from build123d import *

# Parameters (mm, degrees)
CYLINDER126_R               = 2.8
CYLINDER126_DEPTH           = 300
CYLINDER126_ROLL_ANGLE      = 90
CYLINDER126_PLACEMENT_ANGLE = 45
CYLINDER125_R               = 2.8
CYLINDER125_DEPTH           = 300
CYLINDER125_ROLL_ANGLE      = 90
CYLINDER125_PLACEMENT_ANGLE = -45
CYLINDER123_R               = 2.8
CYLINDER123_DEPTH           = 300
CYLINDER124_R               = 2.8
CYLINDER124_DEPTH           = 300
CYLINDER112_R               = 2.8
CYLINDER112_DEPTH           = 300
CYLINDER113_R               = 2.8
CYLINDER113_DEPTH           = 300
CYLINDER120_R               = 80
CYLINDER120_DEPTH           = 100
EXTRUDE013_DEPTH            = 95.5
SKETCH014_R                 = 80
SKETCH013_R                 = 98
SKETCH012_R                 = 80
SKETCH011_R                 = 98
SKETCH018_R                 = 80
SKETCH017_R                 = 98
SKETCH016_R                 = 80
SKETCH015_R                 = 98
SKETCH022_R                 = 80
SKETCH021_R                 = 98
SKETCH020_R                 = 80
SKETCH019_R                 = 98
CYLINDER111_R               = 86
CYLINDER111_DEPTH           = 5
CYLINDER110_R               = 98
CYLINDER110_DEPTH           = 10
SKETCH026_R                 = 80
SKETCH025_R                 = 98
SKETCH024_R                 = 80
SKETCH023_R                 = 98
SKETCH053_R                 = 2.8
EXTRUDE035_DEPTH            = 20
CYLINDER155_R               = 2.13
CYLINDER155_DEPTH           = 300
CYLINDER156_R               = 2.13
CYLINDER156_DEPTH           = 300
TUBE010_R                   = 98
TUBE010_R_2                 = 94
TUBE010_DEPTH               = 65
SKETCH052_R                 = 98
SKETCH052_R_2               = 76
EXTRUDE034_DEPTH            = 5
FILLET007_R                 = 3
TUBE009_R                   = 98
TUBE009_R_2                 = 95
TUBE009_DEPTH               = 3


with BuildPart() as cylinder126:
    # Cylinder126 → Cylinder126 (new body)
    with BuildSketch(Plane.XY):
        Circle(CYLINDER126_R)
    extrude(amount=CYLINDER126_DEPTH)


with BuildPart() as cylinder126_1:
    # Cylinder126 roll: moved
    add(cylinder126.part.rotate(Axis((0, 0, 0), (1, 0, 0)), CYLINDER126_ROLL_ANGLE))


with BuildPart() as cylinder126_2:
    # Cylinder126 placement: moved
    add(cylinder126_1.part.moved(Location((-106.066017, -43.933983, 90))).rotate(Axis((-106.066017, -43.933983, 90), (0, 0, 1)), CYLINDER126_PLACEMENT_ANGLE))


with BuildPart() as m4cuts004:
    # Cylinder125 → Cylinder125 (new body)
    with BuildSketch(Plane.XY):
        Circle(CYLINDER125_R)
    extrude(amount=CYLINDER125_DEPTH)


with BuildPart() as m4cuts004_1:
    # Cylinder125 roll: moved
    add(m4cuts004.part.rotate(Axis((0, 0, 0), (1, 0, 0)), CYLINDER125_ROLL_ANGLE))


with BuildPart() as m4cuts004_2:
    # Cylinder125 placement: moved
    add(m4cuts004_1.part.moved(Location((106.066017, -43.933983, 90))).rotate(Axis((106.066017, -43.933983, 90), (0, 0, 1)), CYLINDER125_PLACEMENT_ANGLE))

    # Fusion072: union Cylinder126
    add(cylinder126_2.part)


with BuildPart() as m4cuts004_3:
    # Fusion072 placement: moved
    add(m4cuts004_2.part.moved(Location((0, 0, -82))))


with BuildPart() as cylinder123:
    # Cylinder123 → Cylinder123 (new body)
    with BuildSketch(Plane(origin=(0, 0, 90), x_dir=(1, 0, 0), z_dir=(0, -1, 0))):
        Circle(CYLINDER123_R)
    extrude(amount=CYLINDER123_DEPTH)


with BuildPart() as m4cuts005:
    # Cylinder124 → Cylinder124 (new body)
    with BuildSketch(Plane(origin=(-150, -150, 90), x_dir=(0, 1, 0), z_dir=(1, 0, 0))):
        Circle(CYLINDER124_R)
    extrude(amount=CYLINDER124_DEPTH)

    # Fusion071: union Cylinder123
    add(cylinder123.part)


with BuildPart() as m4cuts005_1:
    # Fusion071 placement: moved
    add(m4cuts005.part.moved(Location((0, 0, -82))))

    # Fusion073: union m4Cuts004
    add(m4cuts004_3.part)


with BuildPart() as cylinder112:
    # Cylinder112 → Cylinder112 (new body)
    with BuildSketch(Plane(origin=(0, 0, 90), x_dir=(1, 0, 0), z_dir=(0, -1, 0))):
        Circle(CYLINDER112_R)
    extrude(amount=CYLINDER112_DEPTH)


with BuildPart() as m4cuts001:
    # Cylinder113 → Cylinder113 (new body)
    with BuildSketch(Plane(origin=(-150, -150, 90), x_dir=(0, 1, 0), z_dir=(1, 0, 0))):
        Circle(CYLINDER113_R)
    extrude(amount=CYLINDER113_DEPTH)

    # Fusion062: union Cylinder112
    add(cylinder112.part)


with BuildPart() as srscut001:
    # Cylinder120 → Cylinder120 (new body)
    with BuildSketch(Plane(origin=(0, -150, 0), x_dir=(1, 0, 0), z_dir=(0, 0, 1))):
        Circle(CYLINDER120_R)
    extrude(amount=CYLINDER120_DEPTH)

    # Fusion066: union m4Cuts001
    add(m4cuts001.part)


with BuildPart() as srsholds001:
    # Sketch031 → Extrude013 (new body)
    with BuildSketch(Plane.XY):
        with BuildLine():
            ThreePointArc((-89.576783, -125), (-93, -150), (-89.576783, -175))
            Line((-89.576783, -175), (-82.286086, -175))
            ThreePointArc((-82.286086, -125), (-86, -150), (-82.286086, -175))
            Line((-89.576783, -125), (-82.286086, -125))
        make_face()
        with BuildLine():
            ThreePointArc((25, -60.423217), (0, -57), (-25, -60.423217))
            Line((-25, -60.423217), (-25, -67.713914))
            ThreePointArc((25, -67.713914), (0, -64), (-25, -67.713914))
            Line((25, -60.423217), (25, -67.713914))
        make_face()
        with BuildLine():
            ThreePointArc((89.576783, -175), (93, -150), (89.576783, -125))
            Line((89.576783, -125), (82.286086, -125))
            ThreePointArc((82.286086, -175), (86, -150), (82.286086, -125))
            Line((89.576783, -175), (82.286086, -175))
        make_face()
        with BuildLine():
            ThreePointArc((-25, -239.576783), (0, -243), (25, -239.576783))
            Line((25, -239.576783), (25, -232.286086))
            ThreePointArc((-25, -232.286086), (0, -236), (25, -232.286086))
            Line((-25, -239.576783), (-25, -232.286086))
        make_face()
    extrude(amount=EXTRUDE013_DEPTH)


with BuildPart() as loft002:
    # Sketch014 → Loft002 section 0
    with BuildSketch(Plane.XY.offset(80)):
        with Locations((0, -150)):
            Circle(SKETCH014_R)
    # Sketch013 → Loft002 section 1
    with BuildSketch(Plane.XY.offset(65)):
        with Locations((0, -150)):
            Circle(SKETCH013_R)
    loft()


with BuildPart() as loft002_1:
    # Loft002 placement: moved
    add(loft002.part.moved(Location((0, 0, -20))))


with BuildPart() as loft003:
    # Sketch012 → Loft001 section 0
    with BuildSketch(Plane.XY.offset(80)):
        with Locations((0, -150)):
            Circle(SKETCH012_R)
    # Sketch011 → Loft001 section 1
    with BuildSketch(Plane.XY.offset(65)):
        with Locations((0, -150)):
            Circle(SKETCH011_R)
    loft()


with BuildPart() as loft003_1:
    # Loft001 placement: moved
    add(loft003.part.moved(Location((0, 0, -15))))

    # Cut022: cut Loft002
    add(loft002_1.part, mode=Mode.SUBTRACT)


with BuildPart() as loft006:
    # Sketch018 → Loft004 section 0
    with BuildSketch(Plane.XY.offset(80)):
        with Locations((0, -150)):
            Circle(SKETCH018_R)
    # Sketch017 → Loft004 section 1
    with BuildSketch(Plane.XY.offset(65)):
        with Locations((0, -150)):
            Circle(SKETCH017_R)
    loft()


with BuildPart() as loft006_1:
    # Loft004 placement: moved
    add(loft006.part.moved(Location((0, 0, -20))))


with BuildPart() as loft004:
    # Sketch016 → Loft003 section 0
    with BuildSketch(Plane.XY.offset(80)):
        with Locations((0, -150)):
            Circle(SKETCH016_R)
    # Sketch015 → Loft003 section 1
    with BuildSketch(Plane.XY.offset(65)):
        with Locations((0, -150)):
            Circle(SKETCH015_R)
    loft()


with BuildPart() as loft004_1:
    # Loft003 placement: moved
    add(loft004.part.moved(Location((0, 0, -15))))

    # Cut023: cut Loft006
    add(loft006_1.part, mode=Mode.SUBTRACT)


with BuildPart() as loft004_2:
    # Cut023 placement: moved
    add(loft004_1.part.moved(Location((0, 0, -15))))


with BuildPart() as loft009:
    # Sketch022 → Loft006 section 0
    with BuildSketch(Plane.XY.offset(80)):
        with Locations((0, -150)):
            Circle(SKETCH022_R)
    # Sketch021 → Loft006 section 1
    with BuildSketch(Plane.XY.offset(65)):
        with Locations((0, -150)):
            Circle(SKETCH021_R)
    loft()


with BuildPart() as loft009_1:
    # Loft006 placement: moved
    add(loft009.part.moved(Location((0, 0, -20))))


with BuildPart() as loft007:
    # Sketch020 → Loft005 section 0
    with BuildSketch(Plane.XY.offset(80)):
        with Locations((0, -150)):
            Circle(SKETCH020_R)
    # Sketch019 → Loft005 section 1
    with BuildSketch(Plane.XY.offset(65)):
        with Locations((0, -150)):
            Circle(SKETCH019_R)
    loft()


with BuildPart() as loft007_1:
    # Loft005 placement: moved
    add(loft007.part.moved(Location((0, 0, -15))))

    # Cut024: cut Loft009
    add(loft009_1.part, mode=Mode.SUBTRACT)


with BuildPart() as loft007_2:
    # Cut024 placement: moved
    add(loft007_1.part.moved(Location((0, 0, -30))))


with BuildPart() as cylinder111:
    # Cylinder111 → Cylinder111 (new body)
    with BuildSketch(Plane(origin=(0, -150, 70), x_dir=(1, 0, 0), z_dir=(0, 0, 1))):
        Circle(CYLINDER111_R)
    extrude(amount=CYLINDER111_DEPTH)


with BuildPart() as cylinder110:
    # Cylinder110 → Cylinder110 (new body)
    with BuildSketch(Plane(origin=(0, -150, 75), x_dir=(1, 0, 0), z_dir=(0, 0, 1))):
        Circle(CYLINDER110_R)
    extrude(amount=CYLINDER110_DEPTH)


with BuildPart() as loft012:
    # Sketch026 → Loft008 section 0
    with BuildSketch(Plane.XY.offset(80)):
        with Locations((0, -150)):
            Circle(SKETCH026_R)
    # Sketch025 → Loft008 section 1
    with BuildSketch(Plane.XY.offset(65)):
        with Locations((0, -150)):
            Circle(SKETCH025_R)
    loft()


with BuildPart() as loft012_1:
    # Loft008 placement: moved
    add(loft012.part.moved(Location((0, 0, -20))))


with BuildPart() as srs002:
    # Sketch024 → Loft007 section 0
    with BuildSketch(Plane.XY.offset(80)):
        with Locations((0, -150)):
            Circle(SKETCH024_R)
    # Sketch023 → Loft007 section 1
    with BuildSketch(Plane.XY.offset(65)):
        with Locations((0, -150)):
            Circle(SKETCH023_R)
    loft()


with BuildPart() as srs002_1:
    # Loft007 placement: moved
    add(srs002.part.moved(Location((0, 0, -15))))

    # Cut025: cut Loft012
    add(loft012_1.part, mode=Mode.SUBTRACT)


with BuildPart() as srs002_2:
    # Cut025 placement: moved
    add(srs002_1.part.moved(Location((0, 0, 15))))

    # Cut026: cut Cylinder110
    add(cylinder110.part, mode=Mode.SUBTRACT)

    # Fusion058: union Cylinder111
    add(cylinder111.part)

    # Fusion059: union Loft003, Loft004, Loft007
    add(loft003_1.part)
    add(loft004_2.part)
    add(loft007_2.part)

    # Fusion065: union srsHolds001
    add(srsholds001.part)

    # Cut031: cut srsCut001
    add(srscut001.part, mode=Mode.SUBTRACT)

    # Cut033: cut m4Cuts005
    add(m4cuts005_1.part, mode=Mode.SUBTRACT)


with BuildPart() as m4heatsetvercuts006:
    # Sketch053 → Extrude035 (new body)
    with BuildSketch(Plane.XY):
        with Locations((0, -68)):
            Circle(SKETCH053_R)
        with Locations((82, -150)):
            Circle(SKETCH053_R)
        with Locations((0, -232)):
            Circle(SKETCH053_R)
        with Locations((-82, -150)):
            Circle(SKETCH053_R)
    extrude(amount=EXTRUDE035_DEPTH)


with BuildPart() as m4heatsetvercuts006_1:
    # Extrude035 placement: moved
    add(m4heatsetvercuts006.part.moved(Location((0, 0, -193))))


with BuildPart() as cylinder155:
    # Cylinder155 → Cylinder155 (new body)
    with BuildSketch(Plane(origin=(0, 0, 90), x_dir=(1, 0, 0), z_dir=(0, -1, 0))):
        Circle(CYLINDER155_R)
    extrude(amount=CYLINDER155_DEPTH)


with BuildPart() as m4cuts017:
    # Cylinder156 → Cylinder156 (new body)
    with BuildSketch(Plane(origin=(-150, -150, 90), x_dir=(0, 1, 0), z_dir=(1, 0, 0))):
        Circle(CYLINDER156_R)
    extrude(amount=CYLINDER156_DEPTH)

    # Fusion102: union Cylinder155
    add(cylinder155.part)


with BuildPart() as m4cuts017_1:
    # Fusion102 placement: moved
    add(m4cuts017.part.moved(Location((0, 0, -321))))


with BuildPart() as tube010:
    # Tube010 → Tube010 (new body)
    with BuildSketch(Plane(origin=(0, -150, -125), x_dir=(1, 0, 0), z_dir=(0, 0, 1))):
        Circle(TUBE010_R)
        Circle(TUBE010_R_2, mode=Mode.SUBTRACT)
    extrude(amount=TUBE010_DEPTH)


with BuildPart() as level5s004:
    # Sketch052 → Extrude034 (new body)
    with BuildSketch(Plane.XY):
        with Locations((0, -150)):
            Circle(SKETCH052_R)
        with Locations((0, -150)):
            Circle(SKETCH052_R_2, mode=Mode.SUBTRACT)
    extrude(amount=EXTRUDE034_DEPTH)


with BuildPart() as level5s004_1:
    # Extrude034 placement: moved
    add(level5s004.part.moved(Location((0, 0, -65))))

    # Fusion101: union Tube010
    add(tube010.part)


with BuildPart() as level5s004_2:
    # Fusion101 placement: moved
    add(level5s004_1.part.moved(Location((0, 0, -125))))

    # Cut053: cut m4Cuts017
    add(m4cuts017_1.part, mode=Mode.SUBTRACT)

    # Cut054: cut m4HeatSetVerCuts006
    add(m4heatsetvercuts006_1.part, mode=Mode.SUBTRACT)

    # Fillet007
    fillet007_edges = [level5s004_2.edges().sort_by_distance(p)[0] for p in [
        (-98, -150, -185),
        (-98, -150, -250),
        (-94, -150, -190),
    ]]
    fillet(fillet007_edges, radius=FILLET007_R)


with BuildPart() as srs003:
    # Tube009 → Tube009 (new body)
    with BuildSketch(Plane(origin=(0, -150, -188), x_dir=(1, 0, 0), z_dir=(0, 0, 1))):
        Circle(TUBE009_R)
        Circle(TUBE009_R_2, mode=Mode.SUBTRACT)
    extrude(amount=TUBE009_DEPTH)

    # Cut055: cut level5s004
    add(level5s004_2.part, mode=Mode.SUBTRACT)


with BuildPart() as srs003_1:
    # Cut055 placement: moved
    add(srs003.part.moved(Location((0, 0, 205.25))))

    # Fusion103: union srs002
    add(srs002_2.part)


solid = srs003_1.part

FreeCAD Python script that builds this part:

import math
import FreeCAD as App
import Part
import Sketcher
from FreeCAD import Vector


def edges_at(feature, points):
    """Names of the edges that pass closest to the given points."""
    edges = feature.Shape.Edges
    near = lambda p: min(range(len(edges)), key=lambda i: edges[i].distToShape(Part.Vertex(*p))[0])
    return sorted({f"Edge{near(p) + 1}" for p in points})

doc = App.newDocument("Part")
body = doc.addObject("PartDesign::Body", "Body")

# Sketch on XY plane
sketch1 = body.newObject("Sketcher::SketchObject", "Sketch")
sketch1.AttachmentSupport = (doc.getObject("XY_Plane"), [""])
sketch1.MapMode = "FlatFace"
sketch1.addGeometry(Part.Circle(Vector(0, 0, 0), Vector(0, 0, 1), 2.8), False)
sketch1.addConstraint([
    Sketcher.Constraint("Coincident", 0, 3, -1, 1),
    Sketcher.Constraint("Diameter", 0, 5.6),
])
pad1 = body.newObject("PartDesign::Pad", "Pad")
pad1.Profile = sketch1
pad1.Length = 300
body2 = doc.addObject("PartDesign::Body", "Body001")
doc.recompute()

body.Placement = App.Placement(Vector(0, 0, 0), App.Rotation(Vector(1, 0, 0), 90))
boolean = body2.newObject("PartDesign::Boolean", "Boolean")
boolean.Type = "Fuse"
boolean.addObjects([body])
body3 = doc.addObject("PartDesign::Body", "Body002")
doc.recompute()

body2.Placement = App.Placement(Vector(-106.066017, -43.933983, 90), App.Rotation(Vector(0, 0, 1), 45))
boolean2 = body3.newObject("PartDesign::Boolean", "Boolean001")
boolean2.Type = "Fuse"
boolean2.addObjects([body2])
body4 = doc.addObject("PartDesign::Body", "Body003")

# Sketch on XY plane
sketch2 = body4.newObject("Sketcher::SketchObject", "Sketch001")
sketch2.AttachmentSupport = (doc.getObject("XY_Plane003"), [""])
sketch2.MapMode = "FlatFace"
sketch2.addGeometry(Part.Circle(Vector(0, 0, 0), Vector(0, 0, 1), 2.8), False)
sketch2.addConstraint([
    Sketcher.Constraint("Coincident", 0, 3, -1, 1),
    Sketcher.Constraint("Diameter", 0, 5.6),
])
pad2 = body4.newObject("PartDesign::Pad", "Pad001")
pad2.Profile = sketch2
pad2.Length = 300
body5 = doc.addObject("PartDesign::Body", "Body004")
doc.recompute()

body4.Placement = App.Placement(Vector(0, 0, 0), App.Rotation(Vector(1, 0, 0), 90))
boolean3 = body5.newObject("PartDesign::Boolean", "Boolean002")
boolean3.Type = "Fuse"
boolean3.addObjects([body4])
body6 = doc.addObject("PartDesign::Body", "Body005")
doc.recompute()

body5.Placement = App.Placement(Vector(106.066017, -43.933983, 90), App.Rotation(Vector(0, 0, 1), 315))
boolean4 = body6.newObject("PartDesign::Boolean", "Boolean003")
boolean4.Type = "Fuse"
boolean4.addObjects([body5])
doc.recompute()

boolean5 = body6.newObject("PartDesign::Boolean", "Boolean004")
boolean5.Type = "Fuse"
boolean5.addObjects([body3])
body7 = doc.addObject("PartDesign::Body", "Body006")
doc.recompute()

body6.Placement = App.Placement(Vector(0, 0, -82), App.Rotation(Vector(0, 0, 1), 0))
boolean6 = body7.newObject("PartDesign::Boolean", "Boolean005")
boolean6.Type = "Fuse"
boolean6.addObjects([body6])
body8 = doc.addObject("PartDesign::Body", "Body007")

# Sketch on XZ plane
sketch3 = body8.newObject("Sketcher::SketchObject", "Sketch002")
sketch3.AttachmentSupport = (doc.getObject("XZ_Plane007"), [""])
sketch3.MapMode = "FlatFace"
sketch3.addGeometry(Part.Circle(Vector(0, 90, 0), Vector(0, 0, 1), 2.8), False)
sketch3.addConstraint([
    Sketcher.Constraint("PointOnObject", 0, 3, -2),
    Sketcher.Constraint("Diameter", 0, 5.6),
    Sketcher.Constraint("DistanceY", -1, 1, 0, 3, 90.0),
])
pad3 = body8.newObject("PartDesign::Pad", "Pad002")
pad3.Profile = sketch3
pad3.Length = 300
body9 = doc.addObject("PartDesign::Body", "Body008")

# Sketch on YZ plane
sketch4 = body9.newObject("Sketcher::SketchObject", "Sketch003")
sketch4.AttachmentSupport = (doc.getObject("YZ_Plane008"), [""])
sketch4.MapMode = "FlatFace"
sketch4.AttachmentOffset = App.Placement(Vector(0, 0, -150), App.Rotation())
sketch4.addGeometry(Part.Circle(Vector(-150, 90, 0), Vector(0, 0, 1), 2.8), False)
sketch4.addConstraint([
    Sketcher.Constraint("Diameter", 0, 5.6),
    Sketcher.Constraint("DistanceX", 0, 3, -1, 1, 150.0),
    Sketcher.Constraint("DistanceY", -1, 1, 0, 3, 90.0),
])
pad4 = body9.newObject("PartDesign::Pad", "Pad003")
pad4.Profile = sketch4
pad4.Length = 300
doc.recompute()

boolean7 = body9.newObject("PartDesign::Boolean", "Boolean006")
boolean7.Type = "Fuse"
boolean7.addObjects([body8])
body10 = doc.addObject("PartDesign::Body", "Body009")
doc.recompute()

body9.Placement = App.Placement(Vector(0, 0, -82), App.Rotation(Vector(0, 0, 1), 0))
boolean8 = body10.newObject("PartDesign::Boolean", "Boolean007")
boolean8.Type = "Fuse"
boolean8.addObjects([body9])
doc.recompute()

boolean9 = body10.newObject("PartDesign::Boolean", "Boolean008")
boolean9.Type = "Fuse"
boolean9.addObjects([body7])
body11 = doc.addObject("PartDesign::Body", "Body010")

# Sketch on XZ plane
sketch5 = body11.newObject("Sketcher::SketchObject", "Sketch004")
sketch5.AttachmentSupport = (doc.getObject("XZ_Plane010"), [""])
sketch5.MapMode = "FlatFace"
sketch5.addGeometry(Part.Circle(Vector(0, 90, 0), Vector(0, 0, 1), 2.8), False)
sketch5.addConstraint([
    Sketcher.Constraint("PointOnObject", 0, 3, -2),
    Sketcher.Constraint("Diameter", 0, 5.6),
    Sketcher.Constraint("DistanceY", -1, 1, 0, 3, 90.0),
])
pad5 = body11.newObject("PartDesign::Pad", "Pad004")
pad5.Profile = sketch5
pad5.Length = 300
body12 = doc.addObject("PartDesign::Body", "Body011")

# Sketch on YZ plane
sketch6 = body12.newObject("Sketcher::SketchObject", "Sketch005")
sketch6.AttachmentSupport = (doc.getObject("YZ_Plane011"), [""])
sketch6.MapMode = "FlatFace"
sketch6.AttachmentOffset = App.Placement(Vector(0, 0, -150), App.Rotation())
sketch6.addGeometry(Part.Circle(Vector(-150, 90, 0), Vector(0, 0, 1), 2.8), False)
sketch6.addConstraint([
    Sketcher.Constraint("Diameter", 0, 5.6),
    Sketcher.Constraint("DistanceX", 0, 3, -1, 1, 150.0),
    Sketcher.Constraint("DistanceY", -1, 1, 0, 3, 90.0),
])
pad6 = body12.newObject("PartDesign::Pad", "Pad005")
pad6.Profile = sketch6
pad6.Length = 300
doc.recompute()

boolean10 = body12.newObject("PartDesign::Boolean", "Boolean009")
boolean10.Type = "Fuse"
boolean10.addObjects([body11])
body13 = doc.addObject("PartDesign::Body", "Body012")

# Sketch on XY plane
sketch7 = body13.newObject("Sketcher::SketchObject", "Sketch006")
sketch7.AttachmentSupport = (doc.getObject("XY_Plane012"), [""])
sketch7.MapMode = "FlatFace"
sketch7.addGeometry(Part.Circle(Vector(0, -150, 0), Vector(0, 0, 1), 80), False)
sketch7.addConstraint([
    Sketcher.Constraint("PointOnObject", 0, 3, -2),
    Sketcher.Constraint("Diameter", 0, 160.0),
    Sketcher.Constraint("DistanceY", 0, 3, -1, 1, 150.0),
])
pad7 = body13.newObject("PartDesign::Pad", "Pad006")
pad7.Profile = sketch7
pad7.Length = 100
doc.recompute()

boolean11 = body13.newObject("PartDesign::Boolean", "Boolean010")
boolean11.Type = "Fuse"
boolean11.addObjects([body12])
body14 = doc.addObject("PartDesign::Body", "Body013")
body14.AllowCompound = True

# Sketch on XY plane
sketch8 = body14.newObject("Sketcher::SketchObject", "Sketch007")
sketch8.AttachmentSupport = (doc.getObject("XY_Plane013"), [""])
sketch8.MapMode = "FlatFace"
sketch8.addGeometry([
    Part.ArcOfCircle(Part.Circle(Vector(0.000008, -150, 0), Vector(0, 0, 1), 93.000008), math.radians(164.406106), math.radians(195.593894)),  # 0
    Part.LineSegment(Vector(-89.576783, -175, 0), Vector(-82.286086, -175, 0)),  # 1
    Part.ArcOfCircle(Part.Circle(Vector(-0.000007, -150, 0), Vector(0, 0, 1), 85.999993), math.radians(163.100269), math.radians(196.899731)),  # 2
    Part.LineSegment(Vector(-82.286086, -125, 0), Vector(-89.576783, -125, 0)),  # 3
    Part.ArcOfCircle(Part.Circle(Vector(0, -150.000008, 0), Vector(0, 0, 1), 93.000008), math.radians(74.406106), math.radians(105.593894)),  # 4
    Part.LineSegment(Vector(-25, -60.423217, 0), Vector(-25, -67.713914, 0)),  # 5
    Part.ArcOfCircle(Part.Circle(Vector(0, -149.999993, 0), Vector(0, 0, 1), 85.999993), math.radians(73.100269), math.radians(106.899731)),  # 6
    Part.LineSegment(Vector(25, -67.713914, 0), Vector(25, -60.423217, 0)),  # 7
    Part.ArcOfCircle(Part.Circle(Vector(-0.000008, -150, 0), Vector(0, 0, 1), 93.000008), math.radians(-15.593894), math.radians(15.593894)),  # 8
    Part.LineSegment(Vector(89.576783, -125, 0), Vector(82.286086, -125, 0)),  # 9
    Part.ArcOfCircle(Part.Circle(Vector(0.000007, -150, 0), Vector(0, 0, 1), 85.999993), math.radians(-16.899731), math.radians(16.899731)),  # 10
    Part.LineSegment(Vector(82.286086, -175, 0), Vector(89.576783, -175, 0)),  # 11
    Part.ArcOfCircle(Part.Circle(Vector(0, -149.999992, 0), Vector(0, 0, 1), 93.000008), math.radians(-105.593894), math.radians(-74.406106)),  # 12
    Part.LineSegment(Vector(25, -239.576783, 0), Vector(25, -232.286086, 0)),  # 13
    Part.ArcOfCircle(Part.Circle(Vector(0, -150.000007, 0), Vector(0, 0, 1), 85.999993), math.radians(-106.899731), math.radians(-73.100269)),  # 14
    Part.LineSegment(Vector(-25, -232.286086, 0), Vector(-25, -239.576783, 0)),  # 15
], False)
sketch8.addConstraint([
    Sketcher.Constraint("Coincident", 0, 2, 1, 1),
    Sketcher.Constraint("Coincident", 1, 2, 2, 2),
    Sketcher.Constraint("Coincident", 2, 1, 3, 1),
    Sketcher.Constraint("Coincident", 3, 2, 0, 1),
    Sketcher.Constraint("Coincident", 4, 2, 5, 1),
    Sketcher.Constraint("Coincident", 5, 2, 6, 2),
    Sketcher.Constraint("Coincident", 6, 1, 7, 1),
    Sketcher.Constraint("Coincident", 7, 2, 4, 1),
    Sketcher.Constraint("Coincident", 8, 2, 9, 1),
    Sketcher.Constraint("Coincident", 9, 2, 10, 2),
    Sketcher.Constraint("Coincident", 10, 1, 11, 1),
    Sketcher.Constraint("Coincident", 11, 2, 8, 1),
    Sketcher.Constraint("Coincident", 12, 2, 13, 1),
    Sketcher.Constraint("Coincident", 13, 2, 14, 2),
    Sketcher.Constraint("Coincident", 14, 1, 15, 1),
    Sketcher.Constraint("Coincident", 15, 2, 12, 1),
    Sketcher.Constraint("Horizontal", 1),
    Sketcher.Constraint("Horizontal", 3),
    Sketcher.Constraint("Vertical", 5),
    Sketcher.Constraint("Vertical", 7),
    Sketcher.Constraint("Horizontal", 9),
    Sketcher.Constraint("Horizontal", 11),
    Sketcher.Constraint("Vertical", 13),
    Sketcher.Constraint("Vertical", 15),
    Sketcher.Constraint("Coincident", 6, 3, 2, 3),
    Sketcher.Constraint("Coincident", 8, 3, 2, 3),
    Sketcher.Constraint("Coincident", 10, 3, 0, 3),
    Sketcher.Constraint("Coincident", 12, 3, 6, 3),
    Sketcher.Constraint("Coincident", 14, 3, 2, 3),
    Sketcher.Constraint("PointOnObject", 4, 3, -2),
    Sketcher.Constraint("PointOnObject", 6, 3, -2),
    Sketcher.Constraint("DistanceY", 0, 3, -1, 1, 150.0),
    Sketcher.Constraint("DistanceY", 2, 3, -1, 1, 150.0),
    Sketcher.Constraint("DistanceY", 0, 2, -1, 1, 175.0),
    Sketcher.Constraint("DistanceY", 2, 1, -1, 1, 125.0),
    Sketcher.Constraint("DistanceX", 4, 2, -1, 1, 25.0),
    Sketcher.Constraint("DistanceX", -1, 1, 6, 1, 25.0),
    Sketcher.Constraint("DistanceY", 8, 2, -1, 1, 125.0),
    Sketcher.Constraint("DistanceY", 10, 1, -1, 1, 175.0),
    Sketcher.Constraint("DistanceX", -1, 1, 12, 2, 25.0),
    Sketcher.Constraint("DistanceX", 14, 1, -1, 1, 25.0),
    Sketcher.Constraint("Radius", 0, 93.000008),
    Sketcher.Constraint("Radius", 2, 85.999993),
    Sketcher.Constraint("Radius", 4, 93.000008),
    Sketcher.Constraint("Radius", 6, 85.999993),
    Sketcher.Constraint("Radius", 8, 93.000008),
    Sketcher.Constraint("Radius", 10, 85.999993),
    Sketcher.Constraint("Radius", 12, 93.000008),
    Sketcher.Constraint("Radius", 14, 85.999993),
    Sketcher.Constraint("DistanceX", 1, 1, 1, 2, 7.290697),
    Sketcher.Constraint("DistanceY", 5, 2, 5, 1, 7.290697),
])
pad8 = body14.newObject("PartDesign::Pad", "Pad007")
pad8.Profile = sketch8
pad8.Length = 95.5
body15 = doc.addObject("PartDesign::Body", "Body014")

# Sketch on XY plane
sketch9 = body15.newObject("Sketcher::SketchObject", "Sketch008")
sketch9.AttachmentSupport = (doc.getObject("XY_Plane014"), [""])
sketch9.MapMode = "FlatFace"
sketch9.AttachmentOffset = App.Placement(Vector(0, 0, 80), App.Rotation())
sketch9.addGeometry(Part.Circle(Vector(0, -150, 0), Vector(0, 0, 1), 80), False)
sketch9.addConstraint([
    Sketcher.Constraint("PointOnObject", 0, 3, -2),
    Sketcher.Constraint("Diameter", 0, 160.0),
    Sketcher.Constraint("DistanceY", 0, 3, -1, 1, 150.0),
])

# Sketch on XY plane
sketch10 = body15.newObject("Sketcher::SketchObject", "Sketch009")
sketch10.AttachmentSupport = (doc.getObject("XY_Plane014"), [""])
sketch10.MapMode = "FlatFace"
sketch10.AttachmentOffset = App.Placement(Vector(0, 0, 65), App.Rotation())
sketch10.addGeometry(Part.Circle(Vector(0, -150, 0), Vector(0, 0, 1), 98), False)
sketch10.addConstraint([
    Sketcher.Constraint("PointOnObject", 0, 3, -2),
    Sketcher.Constraint("Diameter", 0, 196.0),
    Sketcher.Constraint("DistanceY", 0, 3, -1, 1, 150.0),
])

additiveloft = body15.newObject("PartDesign::AdditiveLoft", "AdditiveLoft")
additiveloft.Profile = sketch9
additiveloft.Sections = [sketch10]
body16 = doc.addObject("PartDesign::Body", "Body015")
doc.recompute()

body15.Placement = App.Placement(Vector(0, 0, -20), App.Rotation(Vector(0, 0, 1), 0))
boolean12 = body16.newObject("PartDesign::Boolean", "Boolean011")
boolean12.Type = "Fuse"
boolean12.addObjects([body15])
body17 = doc.addObject("PartDesign::Body", "Body016")

# Sketch on XY plane
sketch11 = body17.newObject("Sketcher::SketchObject", "Sketch010")
sketch11.AttachmentSupport = (doc.getObject("XY_Plane016"), [""])
sketch11.MapMode = "FlatFace"
sketch11.AttachmentOffset = App.Placement(Vector(0, 0, 80), App.Rotation())
sketch11.addGeometry(Part.Circle(Vector(0, -150, 0), Vector(0, 0, 1), 80), False)
sketch11.addConstraint([
    Sketcher.Constraint("PointOnObject", 0, 3, -2),
    Sketcher.Constraint("Diameter", 0, 160.0),
    Sketcher.Constraint("DistanceY", 0, 3, -1, 1, 150.0),
])

# Sketch on XY plane
sketch12 = body17.newObject("Sketcher::SketchObject", "Sketch011")
sketch12.AttachmentSupport = (doc.getObject("XY_Plane016"), [""])
sketch12.MapMode = "FlatFace"
sketch12.AttachmentOffset = App.Placement(Vector(0, 0, 65), App.Rotation())
sketch12.addGeometry(Part.Circle(Vector(0, -150, 0), Vector(0, 0, 1), 98), False)
sketch12.addConstraint([
    Sketcher.Constraint("PointOnObject", 0, 3, -2),
    Sketcher.Constraint("Diameter", 0, 196.0),
    Sketcher.Constraint("DistanceY", 0, 3, -1, 1, 150.0),
])

additiveloft2 = body17.newObject("PartDesign::AdditiveLoft", "AdditiveLoft001")
additiveloft2.Profile = sketch11
additiveloft2.Sections = [sketch12]
body18 = doc.addObject("PartDesign::Body", "Body017")
doc.recompute()

body17.Placement = App.Placement(Vector(0, 0, -15), App.Rotation(Vector(0, 0, 1), 0))
boolean13 = body18.newObject("PartDesign::Boolean", "Boolean012")
boolean13.Type = "Fuse"
boolean13.addObjects([body17])
doc.recompute()

boolean14 = body18.newObject("PartDesign::Boolean", "Boolean013")
boolean14.Type = "Cut"
boolean14.addObjects([body16])
body19 = doc.addObject("PartDesign::Body", "Body018")

# Sketch on XY plane
sketch13 = body19.newObject("Sketcher::SketchObject", "Sketch012")
sketch13.AttachmentSupport = (doc.getObject("XY_Plane018"), [""])
sketch13.MapMode = "FlatFace"
sketch13.AttachmentOffset = App.Placement(Vector(0, 0, 80), App.Rotation())
sketch13.addGeometry(Part.Circle(Vector(0, -150, 0), Vector(0, 0, 1), 80), False)
sketch13.addConstraint([
    Sketcher.Constraint("PointOnObject", 0, 3, -2),
    Sketcher.Constraint("Diameter", 0, 160.0),
    Sketcher.Constraint("DistanceY", 0, 3, -1, 1, 150.0),
])

# Sketch on XY plane
sketch14 = body19.newObject("Sketcher::SketchObject", "Sketch013")
sketch14.AttachmentSupport = (doc.getObject("XY_Plane018"), [""])
sketch14.MapMode = "FlatFace"
sketch14.AttachmentOffset = App.Placement(Vector(0, 0, 65), App.Rotation())
sketch14.addGeometry(Part.Circle(Vector(0, -150, 0), Vector(0, 0, 1), 98), False)
sketch14.addConstraint([
    Sketcher.Constraint("PointOnObject", 0, 3, -2),
    Sketcher.Constraint("Diameter", 0, 196.0),
    Sketcher.Constraint("DistanceY", 0, 3, -1, 1, 150.0),
])

additiveloft3 = body19.newObject("PartDesign::AdditiveLoft", "AdditiveLoft002")
additiveloft3.Profile = sketch13
additiveloft3.Sections = [sketch14]
body20 = doc.addObject("PartDesign::Body", "Body019")
doc.recompute()

body19.Placement = App.Placement(Vector(0, 0, -20), App.Rotation(Vector(0, 0, 1), 0))
boolean15 = body20.newObject("PartDesign::Boolean", "Boolean014")
boolean15.Type = "Fuse"
boolean15.addObjects([body19])
body21 = doc.addObject("PartDesign::Body", "Body020")

# Sketch on XY plane
sketch15 = body21.newObject("Sketcher::SketchObject", "Sketch014")
sketch15.AttachmentSupport = (doc.getObject("XY_Plane020"), [""])
sketch15.MapMode = "FlatFace"
sketch15.AttachmentOffset = App.Placement(Vector(0, 0, 80), App.Rotation())
sketch15.addGeometry(Part.Circle(Vector(0, -150, 0), Vector(0, 0, 1), 80), False)
sketch15.addConstraint([
    Sketcher.Constraint("PointOnObject", 0, 3, -2),
    Sketcher.Constraint("Diameter", 0, 160.0),
    Sketcher.Constraint("DistanceY", 0, 3, -1, 1, 150.0),
])

# Sketch on XY plane
sketch16 = body21.newObject("Sketcher::SketchObject", "Sketch015")
sketch16.AttachmentSupport = (doc.getObject("XY_Plane020"), [""])
sketch16.MapMode = "FlatFace"
sketch16.AttachmentOffset = App.Placement(Vector(0, 0, 65), App.Rotation())
sketch16.addGeometry(Part.Circle(Vector(0, -150, 0), Vector(0, 0, 1), 98), False)
sketch16.addConstraint([
    Sketcher.Constraint("PointOnObject", 0, 3, -2),
    Sketcher.Constraint("Diameter", 0, 196.0),
    Sketcher.Constraint("DistanceY", 0, 3, -1, 1, 150.0),
])

additiveloft4 = body21.newObject("PartDesign::AdditiveLoft", "AdditiveLoft003")
additiveloft4.Profile = sketch15
additiveloft4.Sections = [sketch16]
body22 = doc.addObject("PartDesign::Body", "Body021")
doc.recompute()

body21.Placement = App.Placement(Vector(0, 0, -15), App.Rotation(Vector(0, 0, 1), 0))
boolean16 = body22.newObject("PartDesign::Boolean", "Boolean015")
boolean16.Type = "Fuse"
boolean16.addObjects([body21])
doc.recompute()

boolean17 = body22.newObject("PartDesign::Boolean", "Boolean016")
boolean17.Type = "Cut"
boolean17.addObjects([body20])
body23 = doc.addObject("PartDesign::Body", "Body022")
doc.recompute()

body22.Placement = App.Placement(Vector(0, 0, -15), App.Rotation(Vector(0, 0, 1), 0))
boolean18 = body23.newObject("PartDesign::Boolean", "Boolean017")
boolean18.Type = "Fuse"
boolean18.addObjects([body22])
body24 = doc.addObject("PartDesign::Body", "Body023")

# Sketch on XY plane
sketch17 = body24.newObject("Sketcher::SketchObject", "Sketch016")
sketch17.AttachmentSupport = (doc.getObject("XY_Plane023"), [""])
sketch17.MapMode = "FlatFace"
sketch17.AttachmentOffset = App.Placement(Vector(0, 0, 80), App.Rotation())
sketch17.addGeometry(Part.Circle(Vector(0, -150, 0), Vector(0, 0, 1), 80), False)
sketch17.addConstraint([
    Sketcher.Constraint("PointOnObject", 0, 3, -2),
    Sketcher.Constraint("Diameter", 0, 160.0),
    Sketcher.Constraint("DistanceY", 0, 3, -1, 1, 150.0),
])

# Sketch on XY plane
sketch18 = body24.newObject("Sketcher::SketchObject", "Sketch017")
sketch18.AttachmentSupport = (doc.getObject("XY_Plane023"), [""])
sketch18.MapMode = "FlatFace"
sketch18.AttachmentOffset = App.Placement(Vector(0, 0, 65), App.Rotation())
sketch18.addGeometry(Part.Circle(Vector(0, -150, 0), Vector(0, 0, 1), 98), False)
sketch18.addConstraint([
    Sketcher.Constraint("PointOnObject", 0, 3, -2),
    Sketcher.Constraint("Diameter", 0, 196.0),
    Sketcher.Constraint("DistanceY", 0, 3, -1, 1, 150.0),
])

additiveloft5 = body24.newObject("PartDesign::AdditiveLoft", "AdditiveLoft004")
additiveloft5.Profile = sketch17
additiveloft5.Sections = [sketch18]
body25 = doc.addObject("PartDesign::Body", "Body024")
doc.recompute()

body24.Placement = App.Placement(Vector(0, 0, -20), App.Rotation(Vector(0, 0, 1), 0))
boolean19 = body25.newObject("PartDesign::Boolean", "Boolean018")
boolean19.Type = "Fuse"
boolean19.addObjects([body24])
body26 = doc.addObject("PartDesign::Body", "Body025")

# Sketch on XY plane
sketch19 = body26.newObject("Sketcher::SketchObject", "Sketch018")
sketch19.AttachmentSupport = (doc.getObject("XY_Plane025"), [""])
sketch19.MapMode = "FlatFace"
sketch19.AttachmentOffset = App.Placement(Vector(0, 0, 80), App.Rotation())
sketch19.addGeometry(Part.Circle(Vector(0, -150, 0), Vector(0, 0, 1), 80), False)
sketch19.addConstraint([
    Sketcher.Constraint("PointOnObject", 0, 3, -2),
    Sketcher.Constraint("Diameter", 0, 160.0),
    Sketcher.Constraint("DistanceY", 0, 3, -1, 1, 150.0),
])

# Sketch on XY plane
sketch20 = body26.newObject("Sketcher::SketchObject", "Sketch019")
sketch20.AttachmentSupport = (doc.getObject("XY_Plane025"), [""])
sketch20.MapMode = "FlatFace"
sketch20.AttachmentOffset = App.Placement(Vector(0, 0, 65), App.Rotation())
sketch20.addGeometry(Part.Circle(Vector(0, -150, 0), Vector(0, 0, 1), 98), False)
sketch20.addConstraint([
    Sketcher.Constraint("PointOnObject", 0, 3, -2),
    Sketcher.Constraint("Diameter", 0, 196.0),
    Sketcher.Constraint("DistanceY", 0, 3, -1, 1, 150.0),
])

additiveloft6 = body26.newObject("PartDesign::AdditiveLoft", "AdditiveLoft005")
additiveloft6.Profile = sketch19
additiveloft6.Sections = [sketch20]
body27 = doc.addObject("PartDesign::Body", "Body026")
doc.recompute()

body26.Placement = App.Placement(Vector(0, 0, -15), App.Rotation(Vector(0, 0, 1), 0))
boolean20 = body27.newObject("PartDesign::Boolean", "Boolean019")
boolean20.Type = "Fuse"
boolean20.addObjects([body26])
doc.recompute()

boolean21 = body27.newObject("PartDesign::Boolean", "Boolean020")
boolean21.Type = "Cut"
boolean21.addObjects([body25])
body28 = doc.addObject("PartDesign::Body", "Body027")
doc.recompute()

body27.Placement = App.Placement(Vector(0, 0, -30), App.Rotation(Vector(0, 0, 1), 0))
boolean22 = body28.newObject("PartDesign::Boolean", "Boolean021")
boolean22.Type = "Fuse"
boolean22.addObjects([body27])
body29 = doc.addObject("PartDesign::Body", "Body028")

# Sketch on XY plane
sketch21 = body29.newObject("Sketcher::SketchObject", "Sketch020")
sketch21.AttachmentSupport = (doc.getObject("XY_Plane028"), [""])
sketch21.MapMode = "FlatFace"
sketch21.AttachmentOffset = App.Placement(Vector(0, 0, 70), App.Rotation())
sketch21.addGeometry(Part.Circle(Vector(0, -150, 0), Vector(0, 0, 1), 86), False)
sketch21.addConstraint([
    Sketcher.Constraint("PointOnObject", 0, 3, -2),
    Sketcher.Constraint("Diameter", 0, 172.0),
    Sketcher.Constraint("DistanceY", 0, 3, -1, 1, 150.0),
])
pad9 = body29.newObject("PartDesign::Pad", "Pad008")
pad9.Profile = sketch21
pad9.Length = 5
body30 = doc.addObject("PartDesign::Body", "Body029")

# Sketch on XY plane
sketch22 = body30.newObject("Sketcher::SketchObject", "Sketch021")
sketch22.AttachmentSupport = (doc.getObject("XY_Plane029"), [""])
sketch22.MapMode = "FlatFace"
sketch22.AttachmentOffset = App.Placement(Vector(0, 0, 75), App.Rotation())
sketch22.addGeometry(Part.Circle(Vector(0, -150, 0), Vector(0, 0, 1), 98), False)
sketch22.addConstraint([
    Sketcher.Constraint("PointOnObject", 0, 3, -2),
    Sketcher.Constraint("Diameter", 0, 196.0),
    Sketcher.Constraint("DistanceY", 0, 3, -1, 1, 150.0),
])
pad10 = body30.newObject("PartDesign::Pad", "Pad009")
pad10.Profile = sketch22
pad10.Length = 10
body31 = doc.addObject("PartDesign::Body", "Body030")

# Sketch on XY plane
sketch23 = body31.newObject("Sketcher::SketchObject", "Sketch022")
sketch23.AttachmentSupport = (doc.getObject("XY_Plane030"), [""])
sketch23.MapMode = "FlatFace"
sketch23.AttachmentOffset = App.Placement(Vector(0, 0, 80), App.Rotation())
sketch23.addGeometry(Part.Circle(Vector(0, -150, 0), Vector(0, 0, 1), 80), False)
sketch23.addConstraint([
    Sketcher.Constraint("PointOnObject", 0, 3, -2),
    Sketcher.Constraint("Diameter", 0, 160.0),
    Sketcher.Constraint("DistanceY", 0, 3, -1, 1, 150.0),
])

# Sketch on XY plane
sketch24 = body31.newObject("Sketcher::SketchObject", "Sketch023")
sketch24.AttachmentSupport = (doc.getObject("XY_Plane030"), [""])
sketch24.MapMode = "FlatFace"
sketch24.AttachmentOffset = App.Placement(Vector(0, 0, 65), App.Rotation())
sketch24.addGeometry(Part.Circle(Vector(0, -150, 0), Vector(0, 0, 1), 98), False)
sketch24.addConstraint([
    Sketcher.Constraint("PointOnObject", 0, 3, -2),
    Sketcher.Constraint("Diameter", 0, 196.0),
    Sketcher.Constraint("DistanceY", 0, 3, -1, 1, 150.0),
])

additiveloft7 = body31.newObject("PartDesign::AdditiveLoft", "AdditiveLoft006")
additiveloft7.Profile = sketch23
additiveloft7.Sections = [sketch24]
body32 = doc.addObject("PartDesign::Body", "Body031")
doc.recompute()

body31.Placement = App.Placement(Vector(0, 0, -20), App.Rotation(Vector(0, 0, 1), 0))
boolean23 = body32.newObject("PartDesign::Boolean", "Boolean022")
boolean23.Type = "Fuse"
boolean23.addObjects([body31])
body33 = doc.addObject("PartDesign::Body", "Body032")

# Sketch on XY plane
sketch25 = body33.newObject("Sketcher::SketchObject", "Sketch024")
sketch25.AttachmentSupport = (doc.getObject("XY_Plane032"), [""])
sketch25.MapMode = "FlatFace"
sketch25.AttachmentOffset = App.Placement(Vector(0, 0, 80), App.Rotation())
sketch25.addGeometry(Part.Circle(Vector(0, -150, 0), Vector(0, 0, 1), 80), False)
sketch25.addConstraint([
    Sketcher.Constraint("PointOnObject", 0, 3, -2),
    Sketcher.Constraint("Diameter", 0, 160.0),
    Sketcher.Constraint("DistanceY", 0, 3, -1, 1, 150.0),
])

# Sketch on XY plane
sketch26 = body33.newObject("Sketcher::SketchObject", "Sketch025")
sketch26.AttachmentSupport = (doc.getObject("XY_Plane032"), [""])
sketch26.MapMode = "FlatFace"
sketch26.AttachmentOffset = App.Placement(Vector(0, 0, 65), App.Rotation())
sketch26.addGeometry(Part.Circle(Vector(0, -150, 0), Vector(0, 0, 1), 98), False)
sketch26.addConstraint([
    Sketcher.Constraint("PointOnObject", 0, 3, -2),
    Sketcher.Constraint("Diameter", 0, 196.0),
    Sketcher.Constraint("DistanceY", 0, 3, -1, 1, 150.0),
])

additiveloft8 = body33.newObject("PartDesign::AdditiveLoft", "AdditiveLoft007")
additiveloft8.Profile = sketch25
additiveloft8.Sections = [sketch26]
body34 = doc.addObject("PartDesign::Body", "Body033")
doc.recompute()

body33.Placement = App.Placement(Vector(0, 0, -15), App.Rotation(Vector(0, 0, 1), 0))
boolean24 = body34.newObject("PartDesign::Boolean", "Boolean023")
boolean24.Type = "Fuse"
boolean24.addObjects([body33])
doc.recompute()

boolean25 = body34.newObject("PartDesign::Boolean", "Boolean024")
boolean25.Type = "Cut"
boolean25.addObjects([body32])
body35 = doc.addObject("PartDesign::Body", "Body034")
body35.AllowCompound = True
doc.recompute()

body34.Placement = App.Placement(Vector(0, 0, 15), App.Rotation(Vector(0, 0, 1), 0))
boolean26 = body35.newObject("PartDesign::Boolean", "Boolean025")
boolean26.Type = "Fuse"
boolean26.addObjects([body34])
doc.recompute()

boolean27 = body35.newObject("PartDesign::Boolean", "Boolean026")
boolean27.Type = "Cut"
boolean27.addObjects([body30])
doc.recompute()

boolean28 = body35.newObject("PartDesign::Boolean", "Boolean027")
boolean28.Type = "Fuse"
boolean28.addObjects([body29])
doc.recompute()

boolean29 = body35.newObject("PartDesign::Boolean", "Boolean028")
boolean29.Type = "Fuse"
boolean29.addObjects([body18])
doc.recompute()

boolean30 = body35.newObject("PartDesign::Boolean", "Boolean029")
boolean30.Type = "Fuse"
boolean30.addObjects([body23])
doc.recompute()

boolean31 = body35.newObject("PartDesign::Boolean", "Boolean030")
boolean31.Type = "Fuse"
boolean31.addObjects([body28])
doc.recompute()

boolean32 = body35.newObject("PartDesign::Boolean", "Boolean031")
boolean32.Type = "Fuse"
boolean32.addObjects([body14])
doc.recompute()

boolean33 = body35.newObject("PartDesign::Boolean", "Boolean032")
boolean33.Type = "Cut"
boolean33.addObjects([body13])
doc.recompute()

boolean34 = body35.newObject("PartDesign::Boolean", "Boolean033")
boolean34.Type = "Cut"
boolean34.addObjects([body10])
body36 = doc.addObject("PartDesign::Body", "Body035")
body36.AllowCompound = True

# Sketch on XY plane
sketch27 = body36.newObject("Sketcher::SketchObject", "Sketch026")
sketch27.AttachmentSupport = (doc.getObject("XY_Plane035"), [""])
sketch27.MapMode = "FlatFace"
sketch27.addGeometry([
    Part.Circle(Vector(0, -68, 0), Vector(0, 0, 1), 2.8),
    Part.Circle(Vector(82, -150, 0), Vector(0, 0, 1), 2.8),
    Part.Circle(Vector(0, -232, 0), Vector(0, 0, 1), 2.8),
    Part.Circle(Vector(-82, -150, 0), Vector(0, 0, 1), 2.8),
], False)
sketch27.addConstraint([
    Sketcher.Constraint("Equal", 0, 1),
    Sketcher.Constraint("Equal", 1, 2),
    Sketcher.Constraint("Equal", 2, 3),
    Sketcher.Constraint("Symmetric", 1, 3, 3, 3, -2),
    Sketcher.Constraint("PointOnObject", 0, 3, -2),
    Sketcher.Constraint("PointOnObject", 2, 3, -2),
    Sketcher.Constraint("Diameter", 0, 5.6),
    Sketcher.Constraint("DistanceY", 0, 3, -1, 1, 68.0),
    Sketcher.Constraint("DistanceX", -1, 1, 1, 3, 82.0),
    Sketcher.Constraint("DistanceY", 1, 3, -1, 1, 150.0),
    Sketcher.Constraint("DistanceY", 2, 3, -1, 1, 232.0),
])
pad11 = body36.newObject("PartDesign::Pad", "Pad010")
pad11.Profile = sketch27
pad11.Length = 20
body37 = doc.addObject("PartDesign::Body", "Body036")
body37.AllowCompound = True
doc.recompute()

body36.Placement = App.Placement(Vector(0, 0, -193), App.Rotation(Vector(0, 0, 1), 0))
boolean35 = body37.newObject("PartDesign::Boolean", "Boolean034")
boolean35.Type = "Fuse"
boolean35.addObjects([body36])
body38 = doc.addObject("PartDesign::Body", "Body037")

# Sketch on XZ plane
sketch28 = body38.newObject("Sketcher::SketchObject", "Sketch027")
sketch28.AttachmentSupport = (doc.getObject("XZ_Plane037"), [""])
sketch28.MapMode = "FlatFace"
sketch28.addGeometry(Part.Circle(Vector(0, 90, 0), Vector(0, 0, 1), 2.1), False)
sketch28.addConstraint([
    Sketcher.Constraint("PointOnObject", 0, 3, -2),
    Sketcher.Constraint("Diameter", 0, 4.26),
    Sketcher.Constraint("DistanceY", -1, 1, 0, 3, 90.0),
])
pad12 = body38.newObject("PartDesign::Pad", "Pad011")
pad12.Profile = sketch28
pad12.Length = 300
body39 = doc.addObject("PartDesign::Body", "Body038")

# Sketch on YZ plane
sketch29 = body39.newObject("Sketcher::SketchObject", "Sketch028")
sketch29.AttachmentSupport = (doc.getObject("YZ_Plane038"), [""])
sketch29.MapMode = "FlatFace"
sketch29.AttachmentOffset = App.Placement(Vector(0, 0, -150), App.Rotation())
sketch29.addGeometry(Part.Circle(Vector(-150, 90, 0), Vector(0, 0, 1), 2.1), False)
sketch29.addConstraint([
    Sketcher.Constraint("Diameter", 0, 4.26),
    Sketcher.Constraint("DistanceX", 0, 3, -1, 1, 150.0),
    Sketcher.Constraint("DistanceY", -1, 1, 0, 3, 90.0),
])
pad13 = body39.newObject("PartDesign::Pad", "Pad012")
pad13.Profile = sketch29
pad13.Length = 300
doc.recompute()

boolean36 = body39.newObject("PartDesign::Boolean", "Boolean035")
boolean36.Type = "Fuse"
boolean36.addObjects([body38])
body40 = doc.addObject("PartDesign::Body", "Body039")
doc.recompute()

body39.Placement = App.Placement(Vector(0, 0, -321), App.Rotation(Vector(0, 0, 1), 0))
boolean37 = body40.newObject("PartDesign::Boolean", "Boolean036")
boolean37.Type = "Fuse"
boolean37.addObjects([body39])
body41 = doc.addObject("PartDesign::Body", "Body040")

# Sketch on XY plane
sketch30 = body41.newObject("Sketcher::SketchObject", "Sketch029")
sketch30.AttachmentSupport = (doc.getObject("XY_Plane040"), [""])
sketch30.MapMode = "FlatFace"
sketch30.AttachmentOffset = App.Placement(Vector(0, 0, -125), App.Rotation())
sketch30.addGeometry([
    Part.Circle(Vector(0, -150, 0), Vector(0, 0, 1), 98),
    Part.Circle(Vector(0, -150, 0), Vector(0, 0, 1), 94),
], False)
sketch30.addConstraint([
    Sketcher.Constraint("Coincident", 1, 3, 0, 3),
    Sketcher.Constraint("PointOnObject", 0, 3, -2),
    Sketcher.Constraint("Diameter", 0, 196.0),
    Sketcher.Constraint("Diameter", 1, 188.0),
    Sketcher.Constraint("DistanceY", 0, 3, -1, 1, 150.0),
])
pad14 = body41.newObject("PartDesign::Pad", "Pad013")
pad14.Profile = sketch30
pad14.Length = 65
body42 = doc.addObject("PartDesign::Body", "Body041")

# Sketch on XY plane
sketch31 = body42.newObject("Sketcher::SketchObject", "Sketch030")
sketch31.AttachmentSupport = (doc.getObject("XY_Plane041"), [""])
sketch31.MapMode = "FlatFace"
sketch31.addGeometry([
    Part.Circle(Vector(0, -150, 0), Vector(0, 0, 1), 98),
    Part.Circle(Vector(0, -150, 0), Vector(0, 0, 1), 76),
], False)
sketch31.addConstraint([
    Sketcher.Constraint("Coincident", 1, 3, 0, 3),
    Sketcher.Constraint("PointOnObject", 0, 3, -2),
    Sketcher.Constraint("Diameter", 0, 196.0),
    Sketcher.Constraint("Diameter", 1, 152.0),
    Sketcher.Constraint("DistanceY", 0, 3, -1, 1, 150.0),
])
pad15 = body42.newObject("PartDesign::Pad", "Pad014")
pad15.Profile = sketch31
pad15.Length = 5
body43 = doc.addObject("PartDesign::Body", "Body042")
doc.recompute()

body42.Placement = App.Placement(Vector(0, 0, -65), App.Rotation(Vector(0, 0, 1), 0))
boolean38 = body43.newObject("PartDesign::Boolean", "Boolean037")
boolean38.Type = "Fuse"
boolean38.addObjects([body42])
doc.recompute()

boolean39 = body43.newObject("PartDesign::Boolean", "Boolean038")
boolean39.Type = "Fuse"
boolean39.addObjects([body41])
body44 = doc.addObject("PartDesign::Body", "Body043")
doc.recompute()

body43.Placement = App.Placement(Vector(0, 0, -125), App.Rotation(Vector(0, 0, 1), 0))
boolean40 = body44.newObject("PartDesign::Boolean", "Boolean039")
boolean40.Type = "Fuse"
boolean40.addObjects([body43])
doc.recompute()

boolean41 = body44.newObject("PartDesign::Boolean", "Boolean040")
boolean41.Type = "Cut"
boolean41.addObjects([body40])
doc.recompute()

boolean42 = body44.newObject("PartDesign::Boolean", "Boolean041")
boolean42.Type = "Cut"
boolean42.addObjects([body37])
doc.recompute()

fillet = body44.newObject("PartDesign::Fillet", "Fillet")
fillet.Base = (boolean42, edges_at(boolean42, [(-98, -150, -185), (-98, -150, -250), (-94, -150, -190)]))
fillet.Radius = 3
body45 = doc.addObject("PartDesign::Body", "Body044")

# Sketch on XY plane
sketch32 = body45.newObject("Sketcher::SketchObject", "Sketch031")
sketch32.AttachmentSupport = (doc.getObject("XY_Plane044"), [""])
sketch32.MapMode = "FlatFace"
sketch32.AttachmentOffset = App.Placement(Vector(0, 0, -188), App.Rotation())
sketch32.addGeometry([
    Part.Circle(Vector(0, -150, 0), Vector(0, 0, 1), 98),
    Part.Circle(Vector(0, -150, 0), Vector(0, 0, 1), 95),
], False)
sketch32.addConstraint([
    Sketcher.Constraint("Coincident", 1, 3, 0, 3),
    Sketcher.Constraint("PointOnObject", 0, 3, -2),
    Sketcher.Constraint("Diameter", 0, 196.0),
    Sketcher.Constraint("Diameter", 1, 190.0),
    Sketcher.Constraint("DistanceY", 0, 3, -1, 1, 150.0),
])
pad16 = body45.newObject("PartDesign::Pad", "Pad015")
pad16.Profile = sketch32
pad16.Length = 3
doc.recompute()

boolean43 = body45.newObject("PartDesign::Boolean", "Boolean042")
boolean43.Type = "Cut"
boolean43.addObjects([body44])
body46 = doc.addObject("PartDesign::Body", "Body045")
doc.recompute()

body45.Placement = App.Placement(Vector(0, 0, 205.25), App.Rotation(Vector(0, 0, 1), 0))
boolean44 = body46.newObject("PartDesign::Boolean", "Boolean043")
boolean44.Type = "Fuse"
boolean44.addObjects([body45])
doc.recompute()

boolean45 = body46.newObject("PartDesign::Boolean", "Boolean044")
boolean45.Type = "Fuse"
boolean45.addObjects([body35])

doc.recompute()
